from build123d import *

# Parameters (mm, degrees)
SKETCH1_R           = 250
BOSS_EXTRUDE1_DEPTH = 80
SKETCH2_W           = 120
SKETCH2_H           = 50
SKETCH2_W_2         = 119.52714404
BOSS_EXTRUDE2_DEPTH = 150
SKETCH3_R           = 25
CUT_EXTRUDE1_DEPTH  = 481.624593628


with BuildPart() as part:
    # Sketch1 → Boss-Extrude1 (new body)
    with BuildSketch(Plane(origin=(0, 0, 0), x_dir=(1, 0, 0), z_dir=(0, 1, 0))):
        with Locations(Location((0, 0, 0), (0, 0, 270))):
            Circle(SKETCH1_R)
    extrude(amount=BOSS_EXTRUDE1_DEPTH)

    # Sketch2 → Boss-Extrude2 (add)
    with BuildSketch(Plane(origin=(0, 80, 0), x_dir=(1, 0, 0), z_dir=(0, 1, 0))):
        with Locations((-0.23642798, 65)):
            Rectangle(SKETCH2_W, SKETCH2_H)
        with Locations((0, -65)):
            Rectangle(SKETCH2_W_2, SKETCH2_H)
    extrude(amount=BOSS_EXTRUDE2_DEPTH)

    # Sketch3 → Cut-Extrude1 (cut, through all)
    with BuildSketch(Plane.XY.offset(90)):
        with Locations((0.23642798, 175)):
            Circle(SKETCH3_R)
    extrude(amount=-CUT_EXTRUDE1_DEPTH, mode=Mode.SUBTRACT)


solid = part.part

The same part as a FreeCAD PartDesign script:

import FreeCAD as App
import Part
import Sketcher
from FreeCAD import Vector


def add_polygon(sketch, points):
    """Adds a closed chain of lines whose ends are joined by coincident constraints."""
    first, n = sketch.GeometryCount, len(points)
    for a, b in zip(points, points[1:] + points[:1]):
        sketch.addGeometry(Part.LineSegment(App.Vector(*a, 0), App.Vector(*b, 0)), False)
    for i in range(n):
        sketch.addConstraint(Sketcher.Constraint("Coincident", first + i, 2, first + (i + 1) % n, 1))

doc = App.newDocument("Part")
body = doc.addObject("PartDesign::Body", "Body")

# Sketch on XZ plane
sketch1 = body.newObject("Sketcher::SketchObject", "Sketch")
sketch1.AttachmentSupport = (doc.getObject("XZ_Plane"), [""])
sketch1.MapMode = "FlatFace"
sketch1.addGeometry(Part.Circle(Vector(0, 0, 0), Vector(0, 0, 1), 250), False)
sketch1.addConstraint([
    Sketcher.Constraint("Coincident", 0, 3, -1, 1),
    Sketcher.Constraint("Diameter", 0, 500.0),
])
pad1 = body.newObject("PartDesign::Pad", "Pad")
pad1.Profile = sketch1
pad1.Length = 80
pad1.Reversed = True

# Sketch on XZ plane
sketch2 = body.newObject("Sketcher::SketchObject", "Sketch001")
sketch2.AttachmentSupport = (doc.getObject("XZ_Plane"), [""])
sketch2.MapMode = "FlatFace"
sketch2.AttachmentOffset = App.Placement(Vector(0, 0, -80), App.Rotation())
add_polygon(sketch2, [(-60, -90), (-60, -40), (60, -40), (60, -90)])  # lines 0-3
add_polygon(sketch2, [(-60, 40), (-60, 90), (60, 90), (60, 40)])  # lines 4-7
sketch2.addConstraint([
    Sketcher.Constraint("Vertical", 0),
    Sketcher.Constraint("Horizontal", 1),
    Sketcher.Constraint("Vertical", 2),
    Sketcher.Constraint("Horizontal", 3),
    Sketcher.Constraint("Vertical", 4),
    Sketcher.Constraint("Horizontal", 5),
    Sketcher.Constraint("Vertical", 6),
    Sketcher.Constraint("Horizontal", 7),
    Sketcher.Constraint("Symmetric", 2, 2, 4, 2, -1, 1),
    Sketcher.Constraint("Symmetric", 1, 2, 6, 2, -1),
    Sketcher.Constraint("DistanceX", 1, 1, 1, 2, 120.0),
    Sketcher.Constraint("DistanceY", 0, 1, 0, 2, 50.0),
    Sketcher.Constraint("DistanceY", 0, 2, -1, 1, 40.0),
    Sketcher.Constraint("DistanceX", 5, 1, 5, 2, 119.527144),
])
pad2 = body.newObject("PartDesign::Pad", "Pad001")
pad2.Profile = sketch2
pad2.Length = 150
pad2.Reversed = True

# Sketch on XY plane
sketch3 = body.newObject("Sketcher::SketchObject", "Sketch002")
sketch3.AttachmentSupport = (doc.getObject("XY_Plane"), [""])
sketch3.MapMode = "FlatFace"
sketch3.AttachmentOffset = App.Placement(Vector(0, 0, 90), App.Rotation())
sketch3.addGeometry(Part.Circle(Vector(0, 175, 0), Vector(0, 0, 1), 25), False)
sketch3.addConstraint([
    Sketcher.Constraint("Diameter", 0, 50.0),
    Sketcher.Constraint("DistanceY", -1, 1, 0, 3, 175.0),
    Sketcher.Constraint("DistanceX", -1, 1, 0, 3, 0.236428),
])
pocket1 = body.newObject("PartDesign::Pocket", "Pocket")
pocket1.Profile = sketch3
pocket1.Type = "ThroughAll"

doc.recompute()
